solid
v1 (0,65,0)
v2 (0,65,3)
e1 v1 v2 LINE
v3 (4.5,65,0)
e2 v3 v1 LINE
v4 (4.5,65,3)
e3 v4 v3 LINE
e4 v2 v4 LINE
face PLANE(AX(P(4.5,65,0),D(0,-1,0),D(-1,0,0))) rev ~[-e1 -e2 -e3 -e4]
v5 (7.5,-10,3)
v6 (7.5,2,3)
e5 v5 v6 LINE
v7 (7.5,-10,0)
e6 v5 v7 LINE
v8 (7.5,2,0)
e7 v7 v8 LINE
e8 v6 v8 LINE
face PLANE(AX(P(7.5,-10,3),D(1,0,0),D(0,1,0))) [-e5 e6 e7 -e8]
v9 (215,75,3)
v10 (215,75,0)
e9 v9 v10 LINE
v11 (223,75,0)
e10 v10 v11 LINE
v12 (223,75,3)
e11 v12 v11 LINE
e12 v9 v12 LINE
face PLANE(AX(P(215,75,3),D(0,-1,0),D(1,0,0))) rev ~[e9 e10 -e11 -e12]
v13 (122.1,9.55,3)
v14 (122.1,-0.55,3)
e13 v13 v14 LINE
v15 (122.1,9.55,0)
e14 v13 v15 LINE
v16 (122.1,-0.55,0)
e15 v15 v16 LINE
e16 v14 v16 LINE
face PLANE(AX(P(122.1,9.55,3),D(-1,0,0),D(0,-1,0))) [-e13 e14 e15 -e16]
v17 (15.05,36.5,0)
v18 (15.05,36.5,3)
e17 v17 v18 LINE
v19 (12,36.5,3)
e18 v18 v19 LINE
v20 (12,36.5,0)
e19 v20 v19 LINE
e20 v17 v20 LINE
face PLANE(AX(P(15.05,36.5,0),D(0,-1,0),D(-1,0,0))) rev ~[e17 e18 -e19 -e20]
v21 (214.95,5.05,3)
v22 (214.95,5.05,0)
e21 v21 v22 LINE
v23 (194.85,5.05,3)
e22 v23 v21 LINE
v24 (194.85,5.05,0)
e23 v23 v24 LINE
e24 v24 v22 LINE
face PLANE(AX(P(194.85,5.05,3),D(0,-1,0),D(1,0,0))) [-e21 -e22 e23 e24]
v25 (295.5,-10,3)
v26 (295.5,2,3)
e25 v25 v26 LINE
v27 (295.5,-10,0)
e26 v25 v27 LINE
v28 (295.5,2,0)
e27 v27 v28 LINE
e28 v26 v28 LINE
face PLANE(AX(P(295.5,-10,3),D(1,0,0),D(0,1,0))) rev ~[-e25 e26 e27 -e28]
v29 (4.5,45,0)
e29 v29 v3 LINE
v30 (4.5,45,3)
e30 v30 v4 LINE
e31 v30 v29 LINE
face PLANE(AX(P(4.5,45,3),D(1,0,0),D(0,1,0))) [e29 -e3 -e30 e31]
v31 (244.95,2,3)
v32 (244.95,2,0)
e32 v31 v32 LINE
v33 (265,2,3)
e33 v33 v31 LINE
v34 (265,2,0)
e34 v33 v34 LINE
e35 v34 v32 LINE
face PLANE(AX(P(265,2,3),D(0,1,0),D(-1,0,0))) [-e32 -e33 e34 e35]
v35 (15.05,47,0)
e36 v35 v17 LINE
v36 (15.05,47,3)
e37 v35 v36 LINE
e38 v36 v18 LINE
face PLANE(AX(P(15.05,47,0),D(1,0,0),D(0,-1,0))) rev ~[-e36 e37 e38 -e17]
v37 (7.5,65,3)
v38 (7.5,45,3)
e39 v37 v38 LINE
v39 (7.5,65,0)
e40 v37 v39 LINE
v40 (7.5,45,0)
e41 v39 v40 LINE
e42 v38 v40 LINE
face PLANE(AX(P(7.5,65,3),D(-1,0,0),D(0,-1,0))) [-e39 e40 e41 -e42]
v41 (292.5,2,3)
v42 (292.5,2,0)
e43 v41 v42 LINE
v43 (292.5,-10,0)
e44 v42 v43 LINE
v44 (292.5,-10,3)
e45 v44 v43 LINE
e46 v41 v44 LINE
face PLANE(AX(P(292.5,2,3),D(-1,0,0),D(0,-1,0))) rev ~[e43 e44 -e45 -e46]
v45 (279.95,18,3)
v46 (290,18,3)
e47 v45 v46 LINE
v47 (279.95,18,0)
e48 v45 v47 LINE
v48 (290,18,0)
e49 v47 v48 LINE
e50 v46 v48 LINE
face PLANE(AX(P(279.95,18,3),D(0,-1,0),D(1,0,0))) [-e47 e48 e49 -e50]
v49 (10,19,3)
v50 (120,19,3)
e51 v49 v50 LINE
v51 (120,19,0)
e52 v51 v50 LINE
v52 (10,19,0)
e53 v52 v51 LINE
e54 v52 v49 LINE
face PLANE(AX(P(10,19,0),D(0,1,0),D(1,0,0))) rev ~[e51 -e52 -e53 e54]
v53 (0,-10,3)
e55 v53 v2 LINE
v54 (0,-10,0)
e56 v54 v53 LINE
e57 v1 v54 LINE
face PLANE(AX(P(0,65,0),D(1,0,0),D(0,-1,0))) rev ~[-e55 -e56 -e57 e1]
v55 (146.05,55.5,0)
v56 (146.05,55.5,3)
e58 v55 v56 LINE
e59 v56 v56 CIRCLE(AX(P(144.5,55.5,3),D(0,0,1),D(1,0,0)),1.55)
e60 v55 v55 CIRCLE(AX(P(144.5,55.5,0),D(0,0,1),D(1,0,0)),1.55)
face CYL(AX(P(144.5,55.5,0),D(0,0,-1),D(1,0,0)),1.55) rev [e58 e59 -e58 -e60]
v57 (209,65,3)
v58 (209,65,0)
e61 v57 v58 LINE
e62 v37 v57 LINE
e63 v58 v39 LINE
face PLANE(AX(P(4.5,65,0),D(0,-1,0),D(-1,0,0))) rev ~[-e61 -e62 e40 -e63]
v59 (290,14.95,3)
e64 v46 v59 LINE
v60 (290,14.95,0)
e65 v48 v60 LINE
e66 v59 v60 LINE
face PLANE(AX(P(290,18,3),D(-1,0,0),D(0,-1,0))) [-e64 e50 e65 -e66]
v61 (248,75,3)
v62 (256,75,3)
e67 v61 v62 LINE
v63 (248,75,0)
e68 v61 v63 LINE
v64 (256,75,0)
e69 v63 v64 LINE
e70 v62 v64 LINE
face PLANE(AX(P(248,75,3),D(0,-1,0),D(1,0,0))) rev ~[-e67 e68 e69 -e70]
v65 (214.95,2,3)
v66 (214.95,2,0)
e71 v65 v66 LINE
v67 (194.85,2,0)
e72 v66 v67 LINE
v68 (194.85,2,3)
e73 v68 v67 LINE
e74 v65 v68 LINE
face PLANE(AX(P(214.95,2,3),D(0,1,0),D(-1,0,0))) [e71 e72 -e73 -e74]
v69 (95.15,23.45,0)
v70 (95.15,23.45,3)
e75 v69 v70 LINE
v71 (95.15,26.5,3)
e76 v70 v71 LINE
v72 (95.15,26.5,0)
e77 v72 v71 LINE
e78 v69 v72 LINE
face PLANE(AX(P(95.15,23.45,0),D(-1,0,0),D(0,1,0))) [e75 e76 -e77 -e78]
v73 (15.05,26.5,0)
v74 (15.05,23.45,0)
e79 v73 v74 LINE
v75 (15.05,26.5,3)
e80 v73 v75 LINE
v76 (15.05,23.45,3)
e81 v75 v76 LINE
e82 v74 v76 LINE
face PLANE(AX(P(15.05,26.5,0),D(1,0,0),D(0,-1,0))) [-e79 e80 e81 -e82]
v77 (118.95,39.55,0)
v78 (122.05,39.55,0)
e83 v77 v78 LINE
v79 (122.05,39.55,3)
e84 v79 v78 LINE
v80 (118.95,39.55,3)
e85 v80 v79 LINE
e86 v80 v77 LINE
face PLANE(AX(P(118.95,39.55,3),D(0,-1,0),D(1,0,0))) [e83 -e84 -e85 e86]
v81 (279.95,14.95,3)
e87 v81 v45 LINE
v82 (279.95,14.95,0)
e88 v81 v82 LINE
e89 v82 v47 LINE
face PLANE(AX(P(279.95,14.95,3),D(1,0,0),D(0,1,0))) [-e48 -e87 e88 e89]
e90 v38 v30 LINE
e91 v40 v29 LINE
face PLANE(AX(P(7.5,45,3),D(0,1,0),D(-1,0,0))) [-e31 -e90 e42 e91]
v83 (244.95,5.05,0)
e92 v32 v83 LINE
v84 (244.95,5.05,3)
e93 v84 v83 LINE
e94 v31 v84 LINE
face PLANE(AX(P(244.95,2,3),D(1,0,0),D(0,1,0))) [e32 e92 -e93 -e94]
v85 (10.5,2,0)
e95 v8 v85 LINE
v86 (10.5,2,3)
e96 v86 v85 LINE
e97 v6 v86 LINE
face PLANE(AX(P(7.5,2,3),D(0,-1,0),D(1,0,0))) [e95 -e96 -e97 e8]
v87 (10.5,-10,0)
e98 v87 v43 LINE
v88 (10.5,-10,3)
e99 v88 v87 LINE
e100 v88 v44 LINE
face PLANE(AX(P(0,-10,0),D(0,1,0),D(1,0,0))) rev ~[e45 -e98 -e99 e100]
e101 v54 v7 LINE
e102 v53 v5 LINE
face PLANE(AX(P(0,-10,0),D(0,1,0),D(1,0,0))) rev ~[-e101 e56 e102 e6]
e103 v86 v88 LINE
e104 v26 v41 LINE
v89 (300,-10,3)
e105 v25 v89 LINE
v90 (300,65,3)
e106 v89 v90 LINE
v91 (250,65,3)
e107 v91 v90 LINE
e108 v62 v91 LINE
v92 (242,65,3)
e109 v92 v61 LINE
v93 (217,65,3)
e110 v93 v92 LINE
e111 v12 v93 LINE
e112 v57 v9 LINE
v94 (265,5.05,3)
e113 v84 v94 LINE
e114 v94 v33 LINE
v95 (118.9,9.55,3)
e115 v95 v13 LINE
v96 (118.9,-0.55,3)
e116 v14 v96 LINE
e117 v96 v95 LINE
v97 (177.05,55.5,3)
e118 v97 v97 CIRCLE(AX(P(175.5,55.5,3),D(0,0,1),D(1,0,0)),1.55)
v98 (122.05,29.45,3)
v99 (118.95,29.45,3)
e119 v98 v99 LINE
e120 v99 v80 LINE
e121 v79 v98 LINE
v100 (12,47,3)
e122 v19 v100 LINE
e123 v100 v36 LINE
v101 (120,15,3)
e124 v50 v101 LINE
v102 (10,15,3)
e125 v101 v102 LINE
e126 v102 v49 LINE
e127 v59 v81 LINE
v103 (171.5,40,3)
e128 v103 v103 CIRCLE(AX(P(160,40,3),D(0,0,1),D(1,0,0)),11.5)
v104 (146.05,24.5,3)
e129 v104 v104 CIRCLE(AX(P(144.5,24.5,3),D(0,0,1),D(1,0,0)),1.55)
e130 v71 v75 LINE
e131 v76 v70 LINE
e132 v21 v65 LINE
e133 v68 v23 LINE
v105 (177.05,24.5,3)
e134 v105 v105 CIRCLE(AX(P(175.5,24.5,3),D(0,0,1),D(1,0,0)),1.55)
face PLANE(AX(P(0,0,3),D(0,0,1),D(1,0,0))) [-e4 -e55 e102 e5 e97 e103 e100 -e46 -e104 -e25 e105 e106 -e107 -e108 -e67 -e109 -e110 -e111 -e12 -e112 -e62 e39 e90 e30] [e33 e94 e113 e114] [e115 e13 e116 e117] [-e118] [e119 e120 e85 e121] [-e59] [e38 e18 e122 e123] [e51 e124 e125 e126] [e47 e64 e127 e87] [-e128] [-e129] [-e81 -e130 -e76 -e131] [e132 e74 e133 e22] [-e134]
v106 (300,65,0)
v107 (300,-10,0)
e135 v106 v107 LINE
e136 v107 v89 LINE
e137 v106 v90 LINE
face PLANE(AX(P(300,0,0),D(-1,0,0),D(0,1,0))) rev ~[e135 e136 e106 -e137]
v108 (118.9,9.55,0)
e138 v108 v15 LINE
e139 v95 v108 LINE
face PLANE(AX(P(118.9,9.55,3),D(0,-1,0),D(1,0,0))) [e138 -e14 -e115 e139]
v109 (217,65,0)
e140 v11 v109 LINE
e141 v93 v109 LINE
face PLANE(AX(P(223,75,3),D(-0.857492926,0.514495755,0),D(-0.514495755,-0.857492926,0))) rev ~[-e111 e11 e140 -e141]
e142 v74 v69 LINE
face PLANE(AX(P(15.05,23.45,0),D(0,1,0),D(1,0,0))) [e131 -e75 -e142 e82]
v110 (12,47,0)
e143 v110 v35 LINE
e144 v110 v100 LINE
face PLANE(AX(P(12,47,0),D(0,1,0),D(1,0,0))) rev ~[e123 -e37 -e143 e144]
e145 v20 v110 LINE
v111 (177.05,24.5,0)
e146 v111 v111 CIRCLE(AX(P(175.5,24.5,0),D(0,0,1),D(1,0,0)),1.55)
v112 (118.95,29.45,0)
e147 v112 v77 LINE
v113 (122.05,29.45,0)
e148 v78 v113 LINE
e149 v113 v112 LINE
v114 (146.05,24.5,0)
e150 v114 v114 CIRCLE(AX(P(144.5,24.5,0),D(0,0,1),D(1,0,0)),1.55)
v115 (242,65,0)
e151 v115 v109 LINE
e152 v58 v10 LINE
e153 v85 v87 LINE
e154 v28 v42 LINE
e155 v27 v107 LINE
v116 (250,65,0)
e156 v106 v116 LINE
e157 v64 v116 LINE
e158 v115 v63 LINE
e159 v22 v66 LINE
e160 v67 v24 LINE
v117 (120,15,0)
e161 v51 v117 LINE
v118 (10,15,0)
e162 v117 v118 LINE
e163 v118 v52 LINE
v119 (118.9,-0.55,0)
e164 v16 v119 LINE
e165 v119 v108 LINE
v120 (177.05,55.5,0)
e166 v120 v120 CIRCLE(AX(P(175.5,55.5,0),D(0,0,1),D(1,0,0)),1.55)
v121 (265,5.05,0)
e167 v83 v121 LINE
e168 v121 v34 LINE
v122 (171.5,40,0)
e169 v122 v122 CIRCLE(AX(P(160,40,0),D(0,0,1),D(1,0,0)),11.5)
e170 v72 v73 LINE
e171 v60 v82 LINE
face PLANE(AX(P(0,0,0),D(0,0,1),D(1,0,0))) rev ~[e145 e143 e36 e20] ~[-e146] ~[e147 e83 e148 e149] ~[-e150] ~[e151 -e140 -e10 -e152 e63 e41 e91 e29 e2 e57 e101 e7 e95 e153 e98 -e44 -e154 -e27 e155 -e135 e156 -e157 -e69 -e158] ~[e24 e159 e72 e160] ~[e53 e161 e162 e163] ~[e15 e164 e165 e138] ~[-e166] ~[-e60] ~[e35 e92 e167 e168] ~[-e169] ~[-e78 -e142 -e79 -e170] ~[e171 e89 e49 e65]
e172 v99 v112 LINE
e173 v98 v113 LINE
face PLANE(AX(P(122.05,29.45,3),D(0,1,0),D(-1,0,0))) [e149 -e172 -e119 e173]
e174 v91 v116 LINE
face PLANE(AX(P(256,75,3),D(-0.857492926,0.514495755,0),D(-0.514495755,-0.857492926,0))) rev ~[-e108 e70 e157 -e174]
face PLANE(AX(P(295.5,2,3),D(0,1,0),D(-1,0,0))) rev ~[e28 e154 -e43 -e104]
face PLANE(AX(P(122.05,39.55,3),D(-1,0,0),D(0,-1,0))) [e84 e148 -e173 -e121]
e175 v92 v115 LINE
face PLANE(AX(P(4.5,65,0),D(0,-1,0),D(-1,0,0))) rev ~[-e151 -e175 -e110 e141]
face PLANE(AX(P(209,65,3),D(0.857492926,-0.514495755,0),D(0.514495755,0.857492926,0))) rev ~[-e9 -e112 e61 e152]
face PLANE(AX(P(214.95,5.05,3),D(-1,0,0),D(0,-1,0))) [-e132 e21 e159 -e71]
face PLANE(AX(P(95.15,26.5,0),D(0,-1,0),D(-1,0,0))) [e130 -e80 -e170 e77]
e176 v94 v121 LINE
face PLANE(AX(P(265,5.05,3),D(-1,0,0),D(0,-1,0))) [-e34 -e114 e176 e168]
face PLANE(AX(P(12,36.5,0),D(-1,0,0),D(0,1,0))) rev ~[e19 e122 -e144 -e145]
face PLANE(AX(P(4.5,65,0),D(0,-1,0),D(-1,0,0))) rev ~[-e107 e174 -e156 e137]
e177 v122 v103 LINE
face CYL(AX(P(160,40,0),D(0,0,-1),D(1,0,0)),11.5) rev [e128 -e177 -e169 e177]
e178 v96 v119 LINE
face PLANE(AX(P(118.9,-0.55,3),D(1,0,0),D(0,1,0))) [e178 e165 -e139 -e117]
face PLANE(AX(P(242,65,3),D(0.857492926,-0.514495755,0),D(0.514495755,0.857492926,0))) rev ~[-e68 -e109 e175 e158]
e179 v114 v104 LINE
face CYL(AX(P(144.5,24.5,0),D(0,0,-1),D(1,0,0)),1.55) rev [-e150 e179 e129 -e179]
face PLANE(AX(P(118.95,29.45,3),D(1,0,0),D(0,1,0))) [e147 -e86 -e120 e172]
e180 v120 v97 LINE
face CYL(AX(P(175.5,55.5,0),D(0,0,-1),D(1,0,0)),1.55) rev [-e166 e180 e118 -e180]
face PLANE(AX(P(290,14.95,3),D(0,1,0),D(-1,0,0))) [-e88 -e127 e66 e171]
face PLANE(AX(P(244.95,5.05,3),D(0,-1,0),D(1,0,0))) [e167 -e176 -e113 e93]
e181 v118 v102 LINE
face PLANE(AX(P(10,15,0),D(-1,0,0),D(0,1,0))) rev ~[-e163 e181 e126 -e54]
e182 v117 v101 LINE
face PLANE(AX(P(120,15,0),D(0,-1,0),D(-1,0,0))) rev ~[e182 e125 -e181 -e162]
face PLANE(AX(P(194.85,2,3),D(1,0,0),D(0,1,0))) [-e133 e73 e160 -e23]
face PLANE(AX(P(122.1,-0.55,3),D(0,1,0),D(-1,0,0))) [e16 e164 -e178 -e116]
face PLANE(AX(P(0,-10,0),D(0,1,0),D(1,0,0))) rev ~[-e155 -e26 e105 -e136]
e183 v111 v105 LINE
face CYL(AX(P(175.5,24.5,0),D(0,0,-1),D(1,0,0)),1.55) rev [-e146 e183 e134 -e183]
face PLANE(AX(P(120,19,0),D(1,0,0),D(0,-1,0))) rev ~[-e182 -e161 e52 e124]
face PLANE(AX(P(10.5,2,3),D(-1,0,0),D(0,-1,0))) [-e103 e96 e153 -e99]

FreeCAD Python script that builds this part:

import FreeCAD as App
import Part
import Sketcher

V = App.Vector


def add_polygon(sketch, points):
    """Adds a closed chain of lines whose ends are joined by coincident constraints."""
    first, n = sketch.GeometryCount, len(points)
    for a, b in zip(points, points[1:] + points[:1]):
        sketch.addGeometry(Part.LineSegment(App.Vector(*a, 0), App.Vector(*b, 0)), False)
    for i in range(n):
        sketch.addConstraint(Sketcher.Constraint("Coincident", first + i, 2, first + (i + 1) % n, 1))

doc = App.newDocument("Part")
body = doc.addObject("PartDesign::Body", "Body")

# Sketch on XY plane
sketch1 = doc.addObject("Sketcher::SketchObject", "Sketch")
body.addObject(sketch1)
sketch1.AttachmentSupport = (doc.XY_Plane, [""])
sketch1.MapMode = "FlatFace"
add_polygon(sketch1, [(0, 65), (0, -10), (300, -10), (300, 65)])  # lines 0-3
add_polygon(sketch1, [(10, 15), (10, 19), (120, 19), (120, 15)])  # lines 4-7
sketch1.addGeometry(Part.Circle(V(144.5, 24.5, 0), V(0, 0, 1), 1.6), False)  # 8
sketch1.addGeometry(Part.Circle(V(175.5, 24.5, 0), V(0, 0, 1), 1.6), False)  # 9
sketch1.addGeometry(Part.Circle(V(144.5, 55.5, 0), V(0, 0, 1), 1.6), False)  # 10
sketch1.addGeometry(Part.Circle(V(160, 40, 0), V(0, 0, 1), 11.5), False)  # 11
sketch1.addGeometry(Part.Circle(V(175.5, 55.5, 0), V(0, 0, 1), 1.6), False)  # 12
sketch1.addConstraint([
    Sketcher.Constraint("Vertical", 0),
    Sketcher.Constraint("Horizontal", 1),
    Sketcher.Constraint("Vertical", 2),
    Sketcher.Constraint("Horizontal", 3),
    Sketcher.Constraint("Vertical", 4),
    Sketcher.Constraint("Horizontal", 5),
    Sketcher.Constraint("Vertical", 6),
    Sketcher.Constraint("Horizontal", 7),
    Sketcher.Constraint("Equal", 8, 9),
    Sketcher.Constraint("Equal", 9, 10),
    Sketcher.Constraint("Equal", 10, 12),
    Sketcher.Constraint("PointOnObject", 0, 2, -2),
    Sketcher.Constraint("Horizontal", 8, 3, 9, 3),
    Sketcher.Constraint("Horizontal", 10, 3, 12, 3),
    Sketcher.Constraint("Vertical", 8, 3, 10, 3),
    Sketcher.Constraint("Vertical", 9, 3, 12, 3),
    Sketcher.Constraint("Diameter", 11, 23.0),
    Sketcher.Constraint("Diameter", 8, 3.1),
    Sketcher.Constraint("DistanceX", 1, 1, 1, 2, 300.0),
    Sketcher.Constraint("DistanceX", 5, 1, 5, 2, 110.0),
    Sketcher.Constraint("DistanceY", 4, 1, 4, 2, 4.0),
    Sketcher.Constraint("DistanceY", -1, 1, 11, 3, 40.0),
    Sketcher.Constraint("DistanceY", 0, 2, -1, 1, 10.0),
    Sketcher.Constraint("DistanceY", -1, 1, 2, 2, 65.0),
    Sketcher.Constraint("DistanceX", -1, 1, 4, 2, 10.0),
    Sketcher.Constraint("DistanceY", -1, 1, 6, 2, 15.0),
    Sketcher.Constraint("DistanceX", 8, 3, 9, 3, 31.0),
    Sketcher.Constraint("DistanceY", 8, 3, 10, 3, 31.0),
    Sketcher.Constraint("DistanceX", 11, 3, 1, 2, 140.0),
    Sketcher.Constraint("DistanceX", 8, 3, 11, 3, 15.5),
    Sketcher.Constraint("DistanceY", 8, 3, 11, 3, 15.5),
])
pad1 = doc.addObject("PartDesign::Pad", "Pad")
body.addObject(pad1)
pad1.Profile = sketch1
pad1.Length = 3

# Sketch on XY plane
sketch2 = doc.addObject("Sketcher::SketchObject", "Sketch001")
body.addObject(sketch2)
sketch2.AttachmentSupport = (doc.XY_Plane, [""])
sketch2.MapMode = "FlatFace"
sketch2.AttachmentOffset = App.Placement(V(0, 0, 3), App.Rotation())
add_polygon(sketch2, [(122, 39.5), (119, 39.5), (119, 29.4), (122, 29.4)])  # lines 0-3
add_polygon(sketch2, [(122.1, -0.6), (122.1, 9.6), (118.9, 9.6), (118.9, -0.6)])  # lines 4-7
sketch2.addConstraint([
    Sketcher.Constraint("Horizontal", 0),
    Sketcher.Constraint("Vertical", 1),
    Sketcher.Constraint("Horizontal", 2),
    Sketcher.Constraint("Vertical", 3),
    Sketcher.Constraint("Vertical", 4),
    Sketcher.Constraint("Horizontal", 5),
    Sketcher.Constraint("Vertical", 6),
    Sketcher.Constraint("Horizontal", 7),
    Sketcher.Constraint("Equal", 3, 4),
    Sketcher.Constraint("DistanceX", 0, 2, 0, 1, 3.1),
    Sketcher.Constraint("DistanceX", 5, 2, 5, 1, 3.2),
    Sketcher.Constraint("DistanceY", 4, 2, 3, 2, 30.0),
    Sketcher.Constraint("DistanceY", 1, 2, 1, 1, 10.1),
    Sketcher.Constraint("DistanceX", -1, 1, 4, 2, 122.1),
    Sketcher.Constraint("DistanceX", -1, 1, 0, 2, 118.95),
    Sketcher.Constraint("DistanceY", -1, 1, 0, 2, 39.55),
])
pocket1 = doc.addObject("PartDesign::Pocket", "Pocket")
body.addObject(pocket1)
pocket1.Profile = sketch2
pocket1.Length = 3

# Sketch on XY plane
sketch3 = doc.addObject("Sketcher::SketchObject", "Sketch002")
body.addObject(sketch3)
sketch3.AttachmentSupport = (doc.XY_Plane, [""])
sketch3.MapMode = "FlatFace"
sketch3.AttachmentOffset = App.Placement(V(0, 0, 3), App.Rotation())
add_polygon(sketch3, [(7.5, 2), (7.5, -10), (10.5, -10), (10.5, 2)])  # lines 0-3
add_polygon(sketch3, [(7.5, 45), (7.5, 65), (4.5, 65), (4.5, 45)])  # lines 4-7
add_polygon(sketch3, [(292.5, 2), (292.5, -10), (295.5, -10), (295.5, 2)])  # lines 8-11
add_polygon(sketch3, [(290, 18), (279.9, 18), (279.9, 14.9), (290, 14.9)])  # lines 12-15
sketch3.addConstraint([
    Sketcher.Constraint("Vertical", 0),
    Sketcher.Constraint("Horizontal", 1),
    Sketcher.Constraint("Vertical", 2),
    Sketcher.Constraint("Horizontal", 3),
    Sketcher.Constraint("Vertical", 4),
    Sketcher.Constraint("Horizontal", 5),
    Sketcher.Constraint("Vertical", 6),
    Sketcher.Constraint("Horizontal", 7),
    Sketcher.Constraint("Vertical", 8),
    Sketcher.Constraint("Horizontal", 9),
    Sketcher.Constraint("Vertical", 10),
    Sketcher.Constraint("Horizontal", 11),
    Sketcher.Constraint("Horizontal", 12),
    Sketcher.Constraint("Vertical", 13),
    Sketcher.Constraint("Horizontal", 14),
    Sketcher.Constraint("Vertical", 15),
    Sketcher.Constraint("Horizontal", 1, 2, 8, 2),
    Sketcher.Constraint("Horizontal", 3, 2, 10, 2),
    Sketcher.Constraint("Vertical", 3, 2, 4, 2),
    Sketcher.Constraint("Equal", 3, 5),
    Sketcher.Constraint("Equal", 7, 9),
    Sketcher.Constraint("DistanceX", 1, 1, 1, 2, 3.0),
    Sketcher.Constraint("DistanceY", 0, 2, 0, 1, 12.0),
    Sketcher.Constraint("DistanceY", 4, 1, 4, 2, 20.0),
    Sketcher.Constraint("DistanceY", 0, 2, -1, 1, 10.0),
    Sketcher.Constraint("DistanceY", 8, 2, 12, 2, 28.0),
    Sketcher.Constraint("DistanceX", 12, 2, 12, 1, 10.05),
    Sketcher.Constraint("DistanceY", 13, 2, 13, 1, 3.05),
    Sketcher.Constraint("DistanceX", -1, 1, 5, 2, 4.5),
    Sketcher.Constraint("DistanceY", -1, 1, 4, 2, 65.0),
    Sketcher.Constraint("DistanceX", -1, 1, 14, 2, 290.0),
    Sketcher.Constraint("DistanceX", 1, 2, 8, 2, 282.0),
])
pocket2 = doc.addObject("PartDesign::Pocket", "Pocket001")
body.addObject(pocket2)
pocket2.Profile = sketch3
pocket2.Length = 3

# Sketch on XY plane
sketch4 = doc.addObject("Sketcher::SketchObject", "Sketch003")
body.addObject(sketch4)
sketch4.AttachmentSupport = (doc.XY_Plane, [""])
sketch4.MapMode = "FlatFace"
add_polygon(sketch4, [(12, 36.5), (12, 47), (15.1, 47), (15.1, 36.5)])  # lines 0-3
add_polygon(sketch4, [(15.1, 26.5), (95.2, 26.5), (95.2, 23.4), (15.1, 23.4)])  # lines 4-7
sketch4.addConstraint([
    Sketcher.Constraint("Vertical", 0),
    Sketcher.Constraint("Horizontal", 1),
    Sketcher.Constraint("Vertical", 2),
    Sketcher.Constraint("Horizontal", 3),
    Sketcher.Constraint("Horizontal", 4),
    Sketcher.Constraint("Vertical", 5),
    Sketcher.Constraint("Horizontal", 6),
    Sketcher.Constraint("Vertical", 7),
    Sketcher.Constraint("Vertical", 2, 2, 6, 2),
    Sketcher.Constraint("Equal", 3, 5),
    Sketcher.Constraint("DistanceX", 4, 1, 4, 2, 80.1),
    Sketcher.Constraint("DistanceY", 0, 1, 0, 2, 10.5),
    Sketcher.Constraint("DistanceX", -1, 1, 0, 2, 12.0),
    Sketcher.Constraint("DistanceY", 4, 2, 2, 2, 10.0),
    Sketcher.Constraint("DistanceX", 1, 1, 1, 2, 3.05),
    Sketcher.Constraint("DistanceY", -1, 1, 0, 2, 47.0),
])
pocket3 = doc.addObject("PartDesign::Pocket", "Pocket002")
body.addObject(pocket3)
pocket3.Profile = sketch4
pocket3.Length = 3
pocket3.Reversed = True

# Sketch on XY plane
sketch5 = doc.addObject("Sketcher::SketchObject", "Sketch004")
body.addObject(sketch5)
sketch5.AttachmentSupport = (doc.XY_Plane, [""])
sketch5.MapMode = "FlatFace"
sketch5.AttachmentOffset = App.Placement(V(0, 0, 3), App.Rotation())
add_polygon(sketch5, [(214.9, 5), (194.8, 5), (194.8, 2), (214.9, 2)])  # lines 0-3
add_polygon(sketch5, [(265, 5), (244.9, 5), (244.9, 2), (265, 2)])  # lines 4-7
sketch5.addConstraint([
    Sketcher.Constraint("Horizontal", 0),
    Sketcher.Constraint("Vertical", 1),
    Sketcher.Constraint("Horizontal", 2),
    Sketcher.Constraint("Vertical", 3),
    Sketcher.Constraint("Horizontal", 4),
    Sketcher.Constraint("Vertical", 5),
    Sketcher.Constraint("Horizontal", 6),
    Sketcher.Constraint("Vertical", 7),
    Sketcher.Constraint("Horizontal", 3, 2, 4, 2),
    Sketcher.Constraint("Horizontal", 2, 2, 5, 2),
    Sketcher.Constraint("DistanceX", 0, 2, 0, 1, 20.1),
    Sketcher.Constraint("DistanceX", 3, 2, 4, 2, 30.0),
    Sketcher.Constraint("DistanceX", 4, 2, 4, 1, 20.05),
    Sketcher.Constraint("DistanceY", 1, 2, 1, 1, 3.05),
    Sketcher.Constraint("DistanceY", -1, 1, 1, 2, 2.0),
    Sketcher.Constraint("DistanceX", -1, 1, 6, 2, 265.0),
])
pocket4 = doc.addObject("PartDesign::Pocket", "Pocket003")
body.addObject(pocket4)
pocket4.Profile = sketch5
pocket4.Length = 3

# Sketch on XY plane
sketch6 = doc.addObject("Sketcher::SketchObject", "Sketch005")
body.addObject(sketch6)
sketch6.AttachmentSupport = (doc.XY_Plane, [""])
sketch6.MapMode = "FlatFace"
sketch6.AttachmentOffset = App.Placement(V(0, 0, 3), App.Rotation())
add_polygon(sketch6, [(209, 65), (217, 65), (223, 75), (215, 75)])  # lines 0-3
add_polygon(sketch6, [(242, 65), (250, 65), (256, 75), (248, 75)])  # lines 4-7
sketch6.addConstraint([
    Sketcher.Constraint("Horizontal", 0),
    Sketcher.Constraint("Horizontal", 2),
    Sketcher.Constraint("Horizontal", 4),
    Sketcher.Constraint("Horizontal", 6),
    Sketcher.Constraint("Parallel", 1, 3),
    Sketcher.Constraint("Parallel", 3, 5),
    Sketcher.Constraint("Parallel", 5, 7),
    Sketcher.Constraint("Horizontal", 3, 2, 4, 2),
    Sketcher.Constraint("Horizontal", 2, 2, 5, 2),
    Sketcher.Constraint("Equal", 2, 4),
    Sketcher.Constraint("DistanceX", 0, 1, 0, 2, 8.0),
    Sketcher.Constraint("DistanceX", 0, 2, 1, 2, 6.0),
    Sketcher.Constraint("DistanceY", 0, 2, 1, 2, 10.0),
    Sketcher.Constraint("DistanceX", 1, 2, 6, 2, 25.0),
    Sketcher.Constraint("DistanceX", -1, 1, 0, 2, 217.0),
    Sketcher.Constraint("DistanceY", -1, 1, 0, 2, 65.0),
])
pad2 = doc.addObject("PartDesign::Pad", "Pad001")
body.addObject(pad2)
pad2.Profile = sketch6
pad2.Length = 3
pad2.Reversed = True

doc.recompute()
